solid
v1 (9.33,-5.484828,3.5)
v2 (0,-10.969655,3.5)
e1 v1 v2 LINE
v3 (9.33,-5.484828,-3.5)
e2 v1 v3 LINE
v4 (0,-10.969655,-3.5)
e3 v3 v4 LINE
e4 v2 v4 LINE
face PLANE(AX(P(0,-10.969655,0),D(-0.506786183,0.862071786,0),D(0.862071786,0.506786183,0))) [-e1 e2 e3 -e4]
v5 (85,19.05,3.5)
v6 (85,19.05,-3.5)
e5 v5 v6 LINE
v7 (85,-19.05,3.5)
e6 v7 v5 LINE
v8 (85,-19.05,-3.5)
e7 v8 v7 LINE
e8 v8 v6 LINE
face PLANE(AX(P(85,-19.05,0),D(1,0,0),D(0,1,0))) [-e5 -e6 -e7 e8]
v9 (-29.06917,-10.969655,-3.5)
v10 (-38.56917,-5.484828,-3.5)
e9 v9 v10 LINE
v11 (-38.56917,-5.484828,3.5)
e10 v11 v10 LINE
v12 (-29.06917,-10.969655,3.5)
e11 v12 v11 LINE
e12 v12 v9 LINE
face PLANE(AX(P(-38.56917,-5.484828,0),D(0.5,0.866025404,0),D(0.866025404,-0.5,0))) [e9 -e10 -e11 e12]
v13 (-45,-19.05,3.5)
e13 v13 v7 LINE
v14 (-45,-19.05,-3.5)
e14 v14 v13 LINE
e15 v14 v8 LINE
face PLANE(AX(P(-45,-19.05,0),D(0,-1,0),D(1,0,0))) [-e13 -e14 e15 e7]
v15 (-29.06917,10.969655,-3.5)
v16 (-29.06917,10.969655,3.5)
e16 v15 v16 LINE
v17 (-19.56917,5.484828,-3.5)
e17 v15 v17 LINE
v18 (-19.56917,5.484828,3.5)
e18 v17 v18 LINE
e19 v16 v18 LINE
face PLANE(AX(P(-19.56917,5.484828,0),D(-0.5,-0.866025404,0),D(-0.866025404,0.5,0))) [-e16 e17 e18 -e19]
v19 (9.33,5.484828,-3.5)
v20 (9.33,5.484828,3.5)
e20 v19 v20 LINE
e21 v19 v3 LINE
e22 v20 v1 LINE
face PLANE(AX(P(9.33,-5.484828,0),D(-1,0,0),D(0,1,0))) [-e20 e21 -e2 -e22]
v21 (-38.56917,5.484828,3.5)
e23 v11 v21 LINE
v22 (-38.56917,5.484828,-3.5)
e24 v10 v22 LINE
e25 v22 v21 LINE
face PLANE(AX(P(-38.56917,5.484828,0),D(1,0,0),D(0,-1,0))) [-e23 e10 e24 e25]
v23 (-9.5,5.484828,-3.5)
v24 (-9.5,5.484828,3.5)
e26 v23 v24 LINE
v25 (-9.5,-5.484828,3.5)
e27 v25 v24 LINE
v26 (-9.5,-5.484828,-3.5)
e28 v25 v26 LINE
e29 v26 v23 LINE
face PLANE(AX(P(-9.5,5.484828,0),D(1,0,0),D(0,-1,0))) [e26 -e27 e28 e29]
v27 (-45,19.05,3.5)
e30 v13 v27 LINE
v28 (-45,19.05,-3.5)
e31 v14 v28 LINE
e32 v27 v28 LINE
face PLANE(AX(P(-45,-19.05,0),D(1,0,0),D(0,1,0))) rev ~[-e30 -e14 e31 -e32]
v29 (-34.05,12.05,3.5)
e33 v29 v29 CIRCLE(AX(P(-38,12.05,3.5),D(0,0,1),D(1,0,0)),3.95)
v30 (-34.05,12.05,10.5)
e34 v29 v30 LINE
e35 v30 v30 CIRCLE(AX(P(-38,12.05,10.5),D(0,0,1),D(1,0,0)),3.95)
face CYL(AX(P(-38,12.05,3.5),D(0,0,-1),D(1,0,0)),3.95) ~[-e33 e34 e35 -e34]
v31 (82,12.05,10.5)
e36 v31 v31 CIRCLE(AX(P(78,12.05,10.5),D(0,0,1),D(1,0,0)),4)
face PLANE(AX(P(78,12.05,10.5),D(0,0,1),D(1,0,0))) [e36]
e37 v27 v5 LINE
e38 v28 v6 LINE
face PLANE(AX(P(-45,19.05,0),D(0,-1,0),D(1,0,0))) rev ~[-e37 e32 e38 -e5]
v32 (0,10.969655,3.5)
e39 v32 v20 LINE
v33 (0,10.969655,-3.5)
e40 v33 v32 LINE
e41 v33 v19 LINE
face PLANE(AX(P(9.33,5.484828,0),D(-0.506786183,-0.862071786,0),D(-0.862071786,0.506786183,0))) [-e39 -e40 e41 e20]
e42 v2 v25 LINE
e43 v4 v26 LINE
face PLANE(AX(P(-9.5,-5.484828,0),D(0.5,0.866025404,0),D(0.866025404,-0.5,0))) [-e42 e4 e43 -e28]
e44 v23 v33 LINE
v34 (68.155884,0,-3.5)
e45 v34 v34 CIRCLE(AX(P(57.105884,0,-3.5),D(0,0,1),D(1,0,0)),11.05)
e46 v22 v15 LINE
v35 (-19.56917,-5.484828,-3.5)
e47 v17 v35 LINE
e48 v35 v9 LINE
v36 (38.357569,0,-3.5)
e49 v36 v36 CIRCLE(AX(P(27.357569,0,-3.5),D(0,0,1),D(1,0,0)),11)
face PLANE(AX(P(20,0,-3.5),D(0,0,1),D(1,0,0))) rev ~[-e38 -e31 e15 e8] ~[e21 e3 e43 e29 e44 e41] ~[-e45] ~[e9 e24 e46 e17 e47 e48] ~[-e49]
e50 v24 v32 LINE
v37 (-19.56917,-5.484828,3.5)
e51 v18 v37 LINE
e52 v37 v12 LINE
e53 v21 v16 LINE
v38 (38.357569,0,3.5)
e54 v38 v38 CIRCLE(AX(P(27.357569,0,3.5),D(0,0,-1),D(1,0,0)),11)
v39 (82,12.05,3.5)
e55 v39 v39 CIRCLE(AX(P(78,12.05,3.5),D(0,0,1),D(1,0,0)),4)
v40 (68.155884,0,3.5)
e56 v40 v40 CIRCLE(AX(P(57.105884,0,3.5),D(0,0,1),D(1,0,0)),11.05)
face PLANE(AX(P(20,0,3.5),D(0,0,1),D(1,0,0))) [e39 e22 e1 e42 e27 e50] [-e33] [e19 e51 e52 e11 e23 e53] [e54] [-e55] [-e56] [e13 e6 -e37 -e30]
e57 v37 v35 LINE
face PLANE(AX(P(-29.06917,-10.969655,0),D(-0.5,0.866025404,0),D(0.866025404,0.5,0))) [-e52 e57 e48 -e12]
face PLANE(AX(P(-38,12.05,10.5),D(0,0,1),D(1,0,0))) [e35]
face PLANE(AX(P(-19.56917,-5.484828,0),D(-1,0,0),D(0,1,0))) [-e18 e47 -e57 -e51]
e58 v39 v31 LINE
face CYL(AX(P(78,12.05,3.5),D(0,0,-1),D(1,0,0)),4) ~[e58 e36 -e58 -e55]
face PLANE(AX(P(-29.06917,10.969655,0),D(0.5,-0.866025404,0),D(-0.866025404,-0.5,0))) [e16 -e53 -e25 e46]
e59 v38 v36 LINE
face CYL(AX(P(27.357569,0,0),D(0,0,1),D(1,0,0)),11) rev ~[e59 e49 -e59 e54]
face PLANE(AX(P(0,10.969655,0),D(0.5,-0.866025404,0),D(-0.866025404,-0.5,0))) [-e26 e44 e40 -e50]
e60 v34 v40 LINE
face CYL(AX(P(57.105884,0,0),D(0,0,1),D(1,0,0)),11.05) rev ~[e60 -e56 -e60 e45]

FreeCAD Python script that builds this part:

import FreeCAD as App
import Part
import Sketcher
Q = App.Units.Quantity

doc = App.newDocument("Part")
body = doc.addObject("PartDesign::Body", "Body")

# Sketch on XY plane
sketch1 = body.newObject("Sketcher::SketchObject", "Sketch")
sketch1.AttachmentSupport = (doc.getObject("XY_Plane"), [""])
sketch1.MapMode = "FlatFace"
sketch1.addGeometry(Part.LineSegment(App.Vector(-45, 19, 0), App.Vector(-45, -19, 0)), False)
sketch1.addGeometry(Part.LineSegment(App.Vector(-45, -19, 0), App.Vector(85, -19, 0)), False)
sketch1.addGeometry(Part.LineSegment(App.Vector(85, -19, 0), App.Vector(85, 19, 0)), False)
sketch1.addGeometry(Part.LineSegment(App.Vector(85, 19, 0), App.Vector(-45, 19, 0)), False)
sketch1.addConstraint(Sketcher.Constraint("Coincident", 0, 2, 1, 1))
sketch1.addConstraint(Sketcher.Constraint("Coincident", 1, 2, 2, 1))
sketch1.addConstraint(Sketcher.Constraint("Coincident", 2, 2, 3, 1))
sketch1.addConstraint(Sketcher.Constraint("Coincident", 3, 2, 0, 1))
sketch1.addConstraint(Sketcher.Constraint("Vertical", 0))
sketch1.addConstraint(Sketcher.Constraint("Horizontal", 1))
sketch1.addConstraint(Sketcher.Constraint("Vertical", 2))
sketch1.addConstraint(Sketcher.Constraint("Horizontal", 3))
sketch1.addConstraint(Sketcher.Constraint("DistanceX", 1, 1, 1, 2, 130.0))
sketch1.addConstraint(Sketcher.Constraint("DistanceY", 0, 2, 0, 1, 38.1))
sketch1.addConstraint(Sketcher.Constraint("DistanceX", 0, 2, -1, 1, 45.0))
sketch1.addConstraint(Sketcher.Constraint("DistanceY", 0, 2, -1, 1, 19.05))
pad1 = body.newObject("PartDesign::Pad", "Pad")
pad1.Profile = sketch1
pad1.Length = 7
pad1.Midplane = True

# Sketch on XY plane
sketch2 = body.newObject("Sketcher::SketchObject", "Sketch001")
sketch2.AttachmentSupport = (doc.getObject("XY_Plane"), [""])
sketch2.MapMode = "FlatFace"
sketch2.addGeometry(Part.LineSegment(App.Vector(9, -5, 0), App.Vector(9, 5, 0)), False)
sketch2.addGeometry(Part.LineSegment(App.Vector(9, 5, 0), App.Vector(0, 11, 0)), False)
sketch2.addGeometry(Part.LineSegment(App.Vector(0, 11, 0), App.Vector(-10, 5, 0)), False)
sketch2.addGeometry(Part.LineSegment(App.Vector(-10, 5, 0), App.Vector(-10, -5, 0)), False)
sketch2.addGeometry(Part.LineSegment(App.Vector(-10, -5, 0), App.Vector(0, -11, 0)), False)
sketch2.addGeometry(Part.LineSegment(App.Vector(0, -11, 0), App.Vector(9, -5, 0)), False)
sketch2.addGeometry(Part.Circle(App.Vector(27, 0, 0), App.Vector(0, 0, 1), 11), False)
sketch2.addGeometry(Part.LineSegment(App.Vector(-20, -5, 0), App.Vector(-20, 5, 0)), False)
sketch2.addGeometry(Part.LineSegment(App.Vector(-20, 5, 0), App.Vector(-29, 11, 0)), False)
sketch2.addGeometry(Part.LineSegment(App.Vector(-29, 11, 0), App.Vector(-39, 5, 0)), False)
sketch2.addGeometry(Part.LineSegment(App.Vector(-39, 5, 0), App.Vector(-39, -5, 0)), False)
sketch2.addGeometry(Part.LineSegment(App.Vector(-39, -5, 0), App.Vector(-29, -11, 0)), False)
sketch2.addGeometry(Part.LineSegment(App.Vector(-29, -11, 0), App.Vector(-20, -5, 0)), False)
sketch2.addGeometry(Part.Circle(App.Vector(57, 0, 0), App.Vector(0, 0, 1), 11), False)
sketch2.addConstraint(Sketcher.Constraint("Coincident", 0, 2, 1, 1))
sketch2.addConstraint(Sketcher.Constraint("Coincident", 1, 2, 2, 1))
sketch2.addConstraint(Sketcher.Constraint("Coincident", 2, 2, 3, 1))
sketch2.addConstraint(Sketcher.Constraint("Coincident", 3, 2, 4, 1))
sketch2.addConstraint(Sketcher.Constraint("Coincident", 4, 2, 5, 1))
sketch2.addConstraint(Sketcher.Constraint("Coincident", 5, 2, 0, 1))
sketch2.addConstraint(Sketcher.Constraint("Coincident", 7, 2, 8, 1))
sketch2.addConstraint(Sketcher.Constraint("Coincident", 8, 2, 9, 1))
sketch2.addConstraint(Sketcher.Constraint("Coincident", 9, 2, 10, 1))
sketch2.addConstraint(Sketcher.Constraint("Coincident", 10, 2, 11, 1))
sketch2.addConstraint(Sketcher.Constraint("Coincident", 11, 2, 12, 1))
sketch2.addConstraint(Sketcher.Constraint("Coincident", 12, 2, 7, 1))
sketch2.addConstraint(Sketcher.Constraint("Vertical", 0))
sketch2.addConstraint(Sketcher.Constraint("Vertical", 3))
sketch2.addConstraint(Sketcher.Constraint("Vertical", 7))
sketch2.addConstraint(Sketcher.Constraint("Vertical", 10))
sketch2.addConstraint(Sketcher.Constraint("Symmetric", 1, 2, 4, 2, -1, 1))
sketch2.addConstraint(Sketcher.Constraint("Symmetric", 8, 2, 11, 2, -1))
sketch2.addConstraint(Sketcher.Constraint("PointOnObject", 6, 3, -1))
sketch2.addConstraint(Sketcher.Constraint("PointOnObject", 13, 3, -1))
sketch2.addConstraint(Sketcher.Constraint("PointOnObject", 1, 2, -2))
sketch2.addConstraint(Sketcher.Constraint("Parallel", 4, 8))
sketch2.addConstraint(Sketcher.Constraint("Parallel", 2, 9))
sketch2.addConstraint(Sketcher.Constraint("Parallel", 8, 11))
sketch2.addConstraint(Sketcher.Constraint("Parallel", 9, 12))
sketch2.addConstraint(Sketcher.Constraint("Horizontal", 0, 2, 2, 2))
sketch2.addConstraint(Sketcher.Constraint("Horizontal", 3, 2, 5, 2))
sketch2.addConstraint(Sketcher.Constraint("Horizontal", 2, 2, 7, 2))
sketch2.addConstraint(Sketcher.Constraint("Horizontal", 1, 2, 8, 2))
sketch2.addConstraint(Sketcher.Constraint("Horizontal", 7, 2, 9, 2))
sketch2.addConstraint(Sketcher.Constraint("Horizontal", 10, 2, 12, 2))
sketch2.addConstraint(Sketcher.Constraint("Diameter", 6, 22.0))
sketch2.addConstraint(Sketcher.Constraint("Diameter", 13, 22.1))
sketch2.addConstraint(Sketcher.Constraint("Angle", 2, Q("-150 deg")))
sketch2.addConstraint(Sketcher.Constraint("DistanceX", 9, 2, 7, 2, 19.0))
sketch2.addConstraint(Sketcher.Constraint("Angle", 1, Q("149.550005 deg")))
sketch2.addConstraint(Sketcher.Constraint("DistanceY", 0, 1, 0, 2, 10.969655))
sketch2.addConstraint(Sketcher.Constraint("DistanceX", -1, 1, 6, 3, 27.357569))
sketch2.addConstraint(Sketcher.Constraint("DistanceX", 7, 2, -1, 1, 19.56917))
sketch2.addConstraint(Sketcher.Constraint("DistanceX", -1, 1, 13, 3, 57.105884))
pocket1 = body.newObject("PartDesign::Pocket", "Pocket")
pocket1.Profile = sketch2
pocket1.Length = 25
pocket1.Midplane = True

# Sketch on XY plane
sketch3 = body.newObject("Sketcher::SketchObject", "Sketch002")
sketch3.AttachmentSupport = (doc.getObject("XY_Plane"), [""])
sketch3.MapMode = "FlatFace"
sketch3.AttachmentOffset = App.Placement(App.Vector(0, 0, 3.5), App.Rotation())
sketch3.addGeometry(Part.Circle(App.Vector(78, 12.1, 0), App.Vector(0, 0, 1), 4), False)
sketch3.addGeometry(Part.Circle(App.Vector(-38, 12.1, 0), App.Vector(0, 0, 1), 4), False)
sketch3.addConstraint(Sketcher.Constraint("Horizontal", 0, 3, 1, 3))
sketch3.addConstraint(Sketcher.Constraint("Diameter", 0, 8.0))
sketch3.addConstraint(Sketcher.Constraint("Diameter", 1, 7.9))
sketch3.addConstraint(Sketcher.Constraint("DistanceX", -1, 1, 0, 3, 78.0))
sketch3.addConstraint(Sketcher.Constraint("DistanceX", 1, 3, -1, 1, 38.0))
sketch3.addConstraint(Sketcher.Constraint("DistanceY", -1, 1, 0, 3, 12.05))
pad2 = body.newObject("PartDesign::Pad", "Pad001")
pad2.Profile = sketch3
pad2.Length = 7

doc.recompute()
